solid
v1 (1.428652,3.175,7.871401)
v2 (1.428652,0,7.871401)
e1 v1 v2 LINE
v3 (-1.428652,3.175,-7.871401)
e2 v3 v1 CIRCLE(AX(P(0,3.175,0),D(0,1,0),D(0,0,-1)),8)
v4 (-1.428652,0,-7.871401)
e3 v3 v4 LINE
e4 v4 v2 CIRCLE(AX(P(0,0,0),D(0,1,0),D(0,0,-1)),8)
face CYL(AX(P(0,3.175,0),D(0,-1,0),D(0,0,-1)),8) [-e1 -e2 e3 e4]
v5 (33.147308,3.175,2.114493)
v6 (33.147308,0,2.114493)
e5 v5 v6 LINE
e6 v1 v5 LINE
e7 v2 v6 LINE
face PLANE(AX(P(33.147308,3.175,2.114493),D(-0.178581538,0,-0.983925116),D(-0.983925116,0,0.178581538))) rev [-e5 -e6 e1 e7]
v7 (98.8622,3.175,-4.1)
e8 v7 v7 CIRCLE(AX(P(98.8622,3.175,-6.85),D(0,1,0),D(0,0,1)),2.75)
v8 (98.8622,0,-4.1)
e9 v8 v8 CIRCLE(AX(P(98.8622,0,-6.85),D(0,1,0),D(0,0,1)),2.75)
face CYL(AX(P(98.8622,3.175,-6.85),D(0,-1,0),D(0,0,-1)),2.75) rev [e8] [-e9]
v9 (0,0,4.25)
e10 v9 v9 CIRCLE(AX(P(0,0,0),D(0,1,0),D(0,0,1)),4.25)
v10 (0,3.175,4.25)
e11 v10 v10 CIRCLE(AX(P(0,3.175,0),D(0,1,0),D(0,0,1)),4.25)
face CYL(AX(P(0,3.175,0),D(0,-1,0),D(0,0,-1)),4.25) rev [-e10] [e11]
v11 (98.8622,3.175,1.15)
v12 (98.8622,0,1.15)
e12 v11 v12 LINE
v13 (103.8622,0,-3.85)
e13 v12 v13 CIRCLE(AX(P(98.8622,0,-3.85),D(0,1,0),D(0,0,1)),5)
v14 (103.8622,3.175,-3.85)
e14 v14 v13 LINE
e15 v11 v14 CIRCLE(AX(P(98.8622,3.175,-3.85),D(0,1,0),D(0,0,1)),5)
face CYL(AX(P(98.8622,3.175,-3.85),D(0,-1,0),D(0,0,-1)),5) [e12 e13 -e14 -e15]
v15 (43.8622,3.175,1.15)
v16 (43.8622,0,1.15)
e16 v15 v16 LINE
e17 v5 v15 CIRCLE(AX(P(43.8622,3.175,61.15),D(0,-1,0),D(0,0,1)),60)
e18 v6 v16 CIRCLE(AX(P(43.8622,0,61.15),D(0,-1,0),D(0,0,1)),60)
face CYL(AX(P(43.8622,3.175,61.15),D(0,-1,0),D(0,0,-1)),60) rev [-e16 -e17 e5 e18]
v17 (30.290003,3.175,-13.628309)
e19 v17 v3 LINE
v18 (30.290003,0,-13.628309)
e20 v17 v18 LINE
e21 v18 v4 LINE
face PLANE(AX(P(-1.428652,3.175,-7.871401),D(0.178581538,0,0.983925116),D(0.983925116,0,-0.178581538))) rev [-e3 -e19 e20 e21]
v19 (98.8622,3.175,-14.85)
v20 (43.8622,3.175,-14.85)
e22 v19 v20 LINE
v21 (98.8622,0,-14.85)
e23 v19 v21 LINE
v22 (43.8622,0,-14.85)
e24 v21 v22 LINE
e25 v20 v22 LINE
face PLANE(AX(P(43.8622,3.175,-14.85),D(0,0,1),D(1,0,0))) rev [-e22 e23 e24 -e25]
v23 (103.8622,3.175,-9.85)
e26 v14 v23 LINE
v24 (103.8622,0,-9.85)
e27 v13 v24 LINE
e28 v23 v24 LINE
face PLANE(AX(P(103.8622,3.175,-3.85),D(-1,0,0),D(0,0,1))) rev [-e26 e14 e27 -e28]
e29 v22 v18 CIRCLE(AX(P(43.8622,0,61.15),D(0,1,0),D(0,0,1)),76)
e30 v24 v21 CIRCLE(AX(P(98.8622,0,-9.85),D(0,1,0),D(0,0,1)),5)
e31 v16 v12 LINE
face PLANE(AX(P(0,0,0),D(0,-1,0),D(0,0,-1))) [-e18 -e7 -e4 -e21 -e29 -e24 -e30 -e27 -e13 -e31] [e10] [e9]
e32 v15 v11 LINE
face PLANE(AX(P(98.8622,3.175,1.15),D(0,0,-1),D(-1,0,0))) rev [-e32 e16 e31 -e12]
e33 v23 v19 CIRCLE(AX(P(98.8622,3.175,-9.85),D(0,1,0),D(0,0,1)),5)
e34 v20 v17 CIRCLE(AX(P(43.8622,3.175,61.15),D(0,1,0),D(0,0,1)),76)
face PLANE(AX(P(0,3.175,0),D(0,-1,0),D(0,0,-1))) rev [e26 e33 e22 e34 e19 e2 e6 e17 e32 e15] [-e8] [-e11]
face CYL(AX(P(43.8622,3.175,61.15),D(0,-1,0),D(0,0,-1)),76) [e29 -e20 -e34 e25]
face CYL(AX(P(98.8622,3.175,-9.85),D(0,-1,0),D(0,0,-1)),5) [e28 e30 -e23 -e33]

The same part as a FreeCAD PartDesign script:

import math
import FreeCAD as App
import Part
import Sketcher
from FreeCAD import Vector
Q = App.Units.Quantity

doc = App.newDocument("Part")
params = doc.addObject("Spreadsheet::Sheet", "Params")
for row, (alias, value) in enumerate([
    ("sketch1_radius", "8 mm"),
    ("sketch1_radius2", "60 mm"),
    ("sketch1_radius3", "5 mm"),
    ("sketch1_diameter", "8.5 mm"),
    ("sketch1_diameter2", "5.5 mm"),
    ("pad1_length", "3.175 mm"),
], start=1):
    params.set(f"A{row}", alias)
    params.set(f"B{row}", "=" + value)
    params.setAlias(f"B{row}", alias)

body = doc.addObject("PartDesign::Body", "Body")

sketch1 = body.newObject("Sketcher::SketchObject", "Sketch")
sketch1.AttachmentSupport = (doc.getObject("XZ_Plane"), [""])
sketch1.MapMode = "FlatFace"
sketch1.addGeometry([
    Part.LineSegment(Vector(30.3, -13.6, 0), Vector(-1.4, -7.9, 0)),
    Part.ArcOfCircle(Part.Circle(Vector(0, 0, 0), Vector(0, 0, 1), 8), math.radians(80), math.radians(260)),
    Part.LineSegment(Vector(1.4, 7.9, 0), Vector(33.1, 2.1, 0)),
    Part.ArcOfCircle(Part.Circle(Vector(43.9, 61.1, 0), Vector(0, 0, 1), 60), math.radians(-100.29), math.radians(-90)),
    Part.LineSegment(Vector(43.9, 1.1, 0), Vector(98.9, 1.1, 0)),
    Part.ArcOfCircle(Part.Circle(Vector(98.9, -3.9, 0), Vector(0, 0, 1), 5), math.radians(0), math.radians(90)),
    Part.LineSegment(Vector(103.9, -3.9, 0), Vector(103.9, -9.8, 0)),
    Part.ArcOfCircle(Part.Circle(Vector(98.9, -9.8, 0), Vector(0, 0, 1), 5), math.radians(-90), math.radians(0)),
    Part.LineSegment(Vector(98.9, -14.8, 0), Vector(43.9, -14.8, 0)),
    Part.ArcOfCircle(Part.Circle(Vector(43.9, 61.1, 0), Vector(0, 0, 1), 76), math.radians(-100.29), math.radians(-90)),
    Part.Circle(Vector(0, 0, 0), Vector(0, 0, 1), 4.2),
    Part.Circle(Vector(98.9, -6.8, 0), Vector(0, 0, 1), 2.8),
], False)
sketch1.addConstraint([
    Sketcher.Constraint("Tangent", 0, 2, 1, 2),
    Sketcher.Constraint("Tangent", 1, 1, 2, 1),
    Sketcher.Constraint("Tangent", 2, 2, 3, 1),
    Sketcher.Constraint("Tangent", 3, 2, 4, 1),
    Sketcher.Constraint("Tangent", 4, 2, 5, 2),
    Sketcher.Constraint("Tangent", 5, 1, 6, 1),
    Sketcher.Constraint("Tangent", 6, 2, 7, 2),
    Sketcher.Constraint("Tangent", 7, 1, 8, 1),
    Sketcher.Constraint("Tangent", 8, 2, 9, 2),
    Sketcher.Constraint("Tangent", 9, 1, 0, 1),
    Sketcher.Constraint("Horizontal", 4),
    Sketcher.Constraint("Vertical", 6),
    Sketcher.Constraint("Horizontal", 8),
    Sketcher.Constraint("Coincident", 1, 3, -1, 1),
    Sketcher.Constraint("Coincident", 10, 3, -1, 1),
    Sketcher.Constraint("Coincident", 9, 3, 3, 3),
    Sketcher.Constraint("Equal", 5, 7),
    Sketcher.Constraint("Parallel", 0, 2),
    Sketcher.Constraint("Vertical", 7, 3, 11, 3),
    Sketcher.Constraint("Radius", 1, Q("8 mm")),
    Sketcher.Constraint("Radius", 3, Q("60 mm")),
    Sketcher.Constraint("Radius", 5, Q("5 mm")),
    Sketcher.Constraint("Diameter", 10, Q("8.5 mm")),
    Sketcher.Constraint("Diameter", 11, Q("5.5 mm")),
    Sketcher.Constraint("DistanceX", 4, 1, 4, 2, Q("55 mm")),
    Sketcher.Constraint("DistanceY", 11, 3, 5, 3, Q("3 mm")),
    Sketcher.Constraint("DistanceY", -1, 1, 3, 3, Q("61.15 mm")),
    Sketcher.Constraint("DistanceX", -1, 1, 3, 3, Q("43.8622 mm")),
])
sketch1.setExpression("Constraints[19]", "Params.sketch1_radius")
sketch1.setExpression("Constraints[20]", "Params.sketch1_radius2")
sketch1.setExpression("Constraints[21]", "Params.sketch1_radius3")
sketch1.setExpression("Constraints[22]", "Params.sketch1_diameter")
sketch1.setExpression("Constraints[23]", "Params.sketch1_diameter2")
pad1 = body.newObject("PartDesign::Pad", "Pad")
pad1.Profile = sketch1
pad1.setExpression("Length", "Params.pad1_length")
pad1.Reversed = True

doc.recompute()
